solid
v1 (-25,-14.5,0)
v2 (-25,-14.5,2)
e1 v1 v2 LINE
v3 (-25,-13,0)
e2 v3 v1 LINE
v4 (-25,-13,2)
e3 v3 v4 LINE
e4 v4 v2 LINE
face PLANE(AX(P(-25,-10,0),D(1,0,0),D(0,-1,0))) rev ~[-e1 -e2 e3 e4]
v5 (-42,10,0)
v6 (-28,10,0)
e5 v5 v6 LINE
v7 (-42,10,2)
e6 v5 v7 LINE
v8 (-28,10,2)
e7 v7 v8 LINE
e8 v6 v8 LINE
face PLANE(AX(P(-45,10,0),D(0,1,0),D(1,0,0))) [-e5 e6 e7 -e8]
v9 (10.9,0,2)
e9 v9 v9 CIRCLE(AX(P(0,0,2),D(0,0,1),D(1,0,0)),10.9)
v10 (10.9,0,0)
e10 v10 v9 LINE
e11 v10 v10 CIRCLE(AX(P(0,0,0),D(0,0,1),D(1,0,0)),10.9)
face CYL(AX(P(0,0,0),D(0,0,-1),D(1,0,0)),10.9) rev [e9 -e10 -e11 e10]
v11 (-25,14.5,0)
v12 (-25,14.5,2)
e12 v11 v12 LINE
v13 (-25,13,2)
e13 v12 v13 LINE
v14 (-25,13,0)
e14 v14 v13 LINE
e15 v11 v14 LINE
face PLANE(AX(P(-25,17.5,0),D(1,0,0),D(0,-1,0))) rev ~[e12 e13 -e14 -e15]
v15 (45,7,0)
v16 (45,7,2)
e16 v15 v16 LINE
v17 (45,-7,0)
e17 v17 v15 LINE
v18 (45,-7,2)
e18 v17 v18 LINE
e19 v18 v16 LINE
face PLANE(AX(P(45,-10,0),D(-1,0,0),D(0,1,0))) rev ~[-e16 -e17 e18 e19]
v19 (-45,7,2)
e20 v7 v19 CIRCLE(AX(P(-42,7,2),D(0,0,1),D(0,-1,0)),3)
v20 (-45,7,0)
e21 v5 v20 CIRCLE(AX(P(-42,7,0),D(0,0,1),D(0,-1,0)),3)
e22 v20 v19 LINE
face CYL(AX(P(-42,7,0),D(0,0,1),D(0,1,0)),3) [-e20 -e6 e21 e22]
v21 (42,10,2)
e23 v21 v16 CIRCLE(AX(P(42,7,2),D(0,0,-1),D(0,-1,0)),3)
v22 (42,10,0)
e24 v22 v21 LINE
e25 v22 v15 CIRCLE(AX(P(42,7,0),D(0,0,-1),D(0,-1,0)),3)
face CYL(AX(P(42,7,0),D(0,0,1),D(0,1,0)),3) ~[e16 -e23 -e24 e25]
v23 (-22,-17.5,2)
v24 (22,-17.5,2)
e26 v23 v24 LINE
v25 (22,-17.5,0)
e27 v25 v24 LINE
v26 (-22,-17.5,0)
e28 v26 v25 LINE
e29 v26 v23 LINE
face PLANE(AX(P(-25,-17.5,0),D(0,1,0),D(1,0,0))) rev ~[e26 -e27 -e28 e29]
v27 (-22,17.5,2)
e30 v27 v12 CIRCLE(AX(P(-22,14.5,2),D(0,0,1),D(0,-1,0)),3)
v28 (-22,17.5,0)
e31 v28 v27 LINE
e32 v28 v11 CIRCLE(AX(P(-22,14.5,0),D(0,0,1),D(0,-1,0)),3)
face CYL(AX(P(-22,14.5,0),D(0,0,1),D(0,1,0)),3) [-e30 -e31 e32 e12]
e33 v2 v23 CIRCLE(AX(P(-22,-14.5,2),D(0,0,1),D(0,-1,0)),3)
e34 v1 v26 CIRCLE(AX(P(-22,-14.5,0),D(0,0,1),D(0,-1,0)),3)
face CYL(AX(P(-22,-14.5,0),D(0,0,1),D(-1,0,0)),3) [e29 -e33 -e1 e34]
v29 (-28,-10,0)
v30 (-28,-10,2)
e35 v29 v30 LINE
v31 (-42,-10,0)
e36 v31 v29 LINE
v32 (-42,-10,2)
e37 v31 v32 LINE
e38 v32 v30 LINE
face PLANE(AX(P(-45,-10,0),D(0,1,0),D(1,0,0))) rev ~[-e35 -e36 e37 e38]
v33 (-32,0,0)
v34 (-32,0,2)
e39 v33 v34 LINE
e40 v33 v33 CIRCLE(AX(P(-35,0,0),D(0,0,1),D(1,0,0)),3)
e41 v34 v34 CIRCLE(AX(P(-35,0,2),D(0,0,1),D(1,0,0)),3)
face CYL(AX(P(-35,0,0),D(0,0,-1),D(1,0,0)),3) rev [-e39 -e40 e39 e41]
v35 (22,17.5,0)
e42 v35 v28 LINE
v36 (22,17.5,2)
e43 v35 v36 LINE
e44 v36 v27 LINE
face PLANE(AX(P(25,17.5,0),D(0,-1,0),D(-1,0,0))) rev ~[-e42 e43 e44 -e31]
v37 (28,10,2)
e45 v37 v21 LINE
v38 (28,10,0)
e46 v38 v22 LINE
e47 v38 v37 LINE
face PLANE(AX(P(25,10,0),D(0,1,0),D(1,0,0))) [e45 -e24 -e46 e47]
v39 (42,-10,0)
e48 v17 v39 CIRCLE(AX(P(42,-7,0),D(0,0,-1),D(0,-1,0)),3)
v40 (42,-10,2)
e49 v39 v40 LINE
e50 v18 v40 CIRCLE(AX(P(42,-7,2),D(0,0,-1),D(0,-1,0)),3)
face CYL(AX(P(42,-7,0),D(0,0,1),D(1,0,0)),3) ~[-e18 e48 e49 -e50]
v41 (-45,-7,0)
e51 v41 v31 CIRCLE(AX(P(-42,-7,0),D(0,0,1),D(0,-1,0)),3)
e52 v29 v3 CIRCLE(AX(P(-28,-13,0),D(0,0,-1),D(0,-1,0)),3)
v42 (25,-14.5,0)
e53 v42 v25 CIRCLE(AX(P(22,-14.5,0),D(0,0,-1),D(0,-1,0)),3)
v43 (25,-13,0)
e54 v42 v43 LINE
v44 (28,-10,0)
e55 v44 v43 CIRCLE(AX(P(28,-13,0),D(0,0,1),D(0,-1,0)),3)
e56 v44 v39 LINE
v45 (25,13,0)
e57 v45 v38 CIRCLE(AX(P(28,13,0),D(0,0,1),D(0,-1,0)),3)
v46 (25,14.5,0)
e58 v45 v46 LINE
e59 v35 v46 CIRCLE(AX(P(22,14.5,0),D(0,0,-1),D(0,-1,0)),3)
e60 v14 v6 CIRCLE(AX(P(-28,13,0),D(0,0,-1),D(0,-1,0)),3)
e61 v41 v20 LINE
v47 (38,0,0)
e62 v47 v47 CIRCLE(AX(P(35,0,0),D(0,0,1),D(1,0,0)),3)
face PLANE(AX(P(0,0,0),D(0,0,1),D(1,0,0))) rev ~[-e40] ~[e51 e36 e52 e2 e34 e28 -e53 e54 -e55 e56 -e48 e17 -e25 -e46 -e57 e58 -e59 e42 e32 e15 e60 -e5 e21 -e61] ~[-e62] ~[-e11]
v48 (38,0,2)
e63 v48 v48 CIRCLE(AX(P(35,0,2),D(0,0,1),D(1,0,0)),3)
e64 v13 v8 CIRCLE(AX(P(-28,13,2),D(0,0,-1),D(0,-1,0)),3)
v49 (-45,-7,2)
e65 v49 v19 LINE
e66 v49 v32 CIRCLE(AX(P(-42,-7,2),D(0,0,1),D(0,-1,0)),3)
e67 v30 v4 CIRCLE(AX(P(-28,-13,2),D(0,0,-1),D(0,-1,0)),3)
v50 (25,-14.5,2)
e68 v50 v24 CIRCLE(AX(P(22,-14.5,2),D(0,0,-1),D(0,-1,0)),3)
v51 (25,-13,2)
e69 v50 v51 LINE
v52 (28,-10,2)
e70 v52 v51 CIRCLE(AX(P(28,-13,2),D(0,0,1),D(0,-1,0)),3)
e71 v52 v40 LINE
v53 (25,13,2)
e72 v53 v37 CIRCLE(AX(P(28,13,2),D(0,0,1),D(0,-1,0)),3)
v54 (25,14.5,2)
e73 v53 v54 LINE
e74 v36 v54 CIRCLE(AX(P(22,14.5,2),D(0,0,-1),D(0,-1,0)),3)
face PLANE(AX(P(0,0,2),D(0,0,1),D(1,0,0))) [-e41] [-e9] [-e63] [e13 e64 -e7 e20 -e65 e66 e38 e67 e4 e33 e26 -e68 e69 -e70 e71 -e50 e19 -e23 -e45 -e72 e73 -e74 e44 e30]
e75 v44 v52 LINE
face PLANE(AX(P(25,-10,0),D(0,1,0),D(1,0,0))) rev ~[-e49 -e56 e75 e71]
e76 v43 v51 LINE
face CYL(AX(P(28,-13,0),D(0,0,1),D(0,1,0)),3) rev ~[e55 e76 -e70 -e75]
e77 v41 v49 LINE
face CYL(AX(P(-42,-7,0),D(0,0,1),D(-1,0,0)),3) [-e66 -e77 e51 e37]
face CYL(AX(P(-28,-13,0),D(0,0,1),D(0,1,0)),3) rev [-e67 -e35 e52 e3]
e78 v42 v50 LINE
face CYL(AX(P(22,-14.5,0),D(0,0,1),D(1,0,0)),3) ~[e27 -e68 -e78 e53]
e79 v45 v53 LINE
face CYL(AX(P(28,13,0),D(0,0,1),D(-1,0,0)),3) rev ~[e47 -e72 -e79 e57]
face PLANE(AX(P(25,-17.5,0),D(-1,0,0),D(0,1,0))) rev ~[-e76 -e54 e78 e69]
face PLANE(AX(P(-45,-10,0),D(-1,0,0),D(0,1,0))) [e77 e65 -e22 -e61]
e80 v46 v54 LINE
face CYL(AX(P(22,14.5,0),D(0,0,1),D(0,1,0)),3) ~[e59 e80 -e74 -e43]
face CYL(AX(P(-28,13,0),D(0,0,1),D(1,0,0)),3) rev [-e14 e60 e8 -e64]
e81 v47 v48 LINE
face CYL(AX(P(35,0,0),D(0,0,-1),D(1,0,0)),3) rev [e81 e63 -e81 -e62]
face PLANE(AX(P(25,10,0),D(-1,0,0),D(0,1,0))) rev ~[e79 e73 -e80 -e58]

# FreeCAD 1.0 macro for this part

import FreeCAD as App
import Part
import Sketcher


def edges_at(feature, points):
    """Names of the edges that pass closest to the given points."""
    edges = feature.Shape.Edges
    near = lambda p: min(range(len(edges)), key=lambda i: edges[i].distToShape(Part.Vertex(*p))[0])
    return sorted({f"Edge{near(p) + 1}" for p in points})

doc = App.newDocument("Part")
body = doc.addObject("PartDesign::Body", "Body")

sketch1 = doc.addObject("Sketcher::SketchObject", "Sketch")
body.addObject(sketch1)
sketch1.AttachmentSupport = (doc.XY_Plane, [""])
sketch1.MapMode = "FlatFace"
sketch1.addGeometry(Part.LineSegment(App.Vector(25, 17.5, 0), App.Vector(-25, 17.5, 0)), False)
sketch1.addGeometry(Part.LineSegment(App.Vector(-25, 17.5, 0), App.Vector(-25, 10, 0)), False)
sketch1.addGeometry(Part.LineSegment(App.Vector(-25, 10, 0), App.Vector(-45, 10, 0)), False)
sketch1.addGeometry(Part.LineSegment(App.Vector(-45, 10, 0), App.Vector(-45, -10, 0)), False)
sketch1.addGeometry(Part.LineSegment(App.Vector(-45, -10, 0), App.Vector(-25, -10, 0)), False)
sketch1.addGeometry(Part.LineSegment(App.Vector(-25, -10, 0), App.Vector(-25, -17.5, 0)), False)
sketch1.addGeometry(Part.LineSegment(App.Vector(-25, -17.5, 0), App.Vector(25, -17.5, 0)), False)
sketch1.addGeometry(Part.LineSegment(App.Vector(25, -17.5, 0), App.Vector(25, -10, 0)), False)
sketch1.addGeometry(Part.LineSegment(App.Vector(25, -10, 0), App.Vector(45, -10, 0)), False)
sketch1.addGeometry(Part.LineSegment(App.Vector(45, -10, 0), App.Vector(45, 10, 0)), False)
sketch1.addGeometry(Part.LineSegment(App.Vector(45, 10, 0), App.Vector(25, 10, 0)), False)
sketch1.addGeometry(Part.LineSegment(App.Vector(25, 10, 0), App.Vector(25, 17.5, 0)), False)
sketch1.addGeometry(Part.Circle(App.Vector(-35, 0, 0), App.Vector(0, 0, 1), 3), False)
sketch1.addGeometry(Part.Circle(App.Vector(0, 0, 0), App.Vector(0, 0, 1), 10.9), False)
sketch1.addGeometry(Part.Circle(App.Vector(35, 0, 0), App.Vector(0, 0, 1), 3), False)
sketch1.addConstraint(Sketcher.Constraint("Coincident", 0, 2, 1, 1))
sketch1.addConstraint(Sketcher.Constraint("Coincident", 1, 2, 2, 1))
sketch1.addConstraint(Sketcher.Constraint("Coincident", 2, 2, 3, 1))
sketch1.addConstraint(Sketcher.Constraint("Coincident", 3, 2, 4, 1))
sketch1.addConstraint(Sketcher.Constraint("Coincident", 4, 2, 5, 1))
sketch1.addConstraint(Sketcher.Constraint("Coincident", 5, 2, 6, 1))
sketch1.addConstraint(Sketcher.Constraint("Coincident", 6, 2, 7, 1))
sketch1.addConstraint(Sketcher.Constraint("Coincident", 7, 2, 8, 1))
sketch1.addConstraint(Sketcher.Constraint("Coincident", 8, 2, 9, 1))
sketch1.addConstraint(Sketcher.Constraint("Coincident", 9, 2, 10, 1))
sketch1.addConstraint(Sketcher.Constraint("Coincident", 10, 2, 11, 1))
sketch1.addConstraint(Sketcher.Constraint("Coincident", 11, 2, 0, 1))
sketch1.addConstraint(Sketcher.Constraint("Horizontal", 0))
sketch1.addConstraint(Sketcher.Constraint("Vertical", 1))
sketch1.addConstraint(Sketcher.Constraint("Horizontal", 2))
sketch1.addConstraint(Sketcher.Constraint("Vertical", 3))
sketch1.addConstraint(Sketcher.Constraint("Horizontal", 4))
sketch1.addConstraint(Sketcher.Constraint("Vertical", 5))
sketch1.addConstraint(Sketcher.Constraint("Horizontal", 6))
sketch1.addConstraint(Sketcher.Constraint("Vertical", 7))
sketch1.addConstraint(Sketcher.Constraint("Horizontal", 8))
sketch1.addConstraint(Sketcher.Constraint("Vertical", 9))
sketch1.addConstraint(Sketcher.Constraint("Horizontal", 10))
sketch1.addConstraint(Sketcher.Constraint("Vertical", 11))
sketch1.addConstraint(Sketcher.Constraint("Coincident", 13, 3, -1, 1))
sketch1.addConstraint(Sketcher.Constraint("Equal", 12, 14))
sketch1.addConstraint(Sketcher.Constraint("Symmetric", 12, 3, 14, 3, -1, 1))
sketch1.addConstraint(Sketcher.Constraint("Symmetric", 0, 2, 6, 2, -1, 1))
sketch1.addConstraint(Sketcher.Constraint("Symmetric", 2, 2, 8, 2, -1, 1))
sketch1.addConstraint(Sketcher.Constraint("Symmetric", 4, 2, 10, 2, -1, 1))
sketch1.addConstraint(Sketcher.Constraint("Symmetric", 4, 2, 7, 2, -2))
sketch1.addConstraint(Sketcher.Constraint("PointOnObject", 12, 3, -1))
sketch1.addConstraint(Sketcher.Constraint("Equal", 10, 3))
sketch1.addConstraint(Sketcher.Constraint("Diameter", 12, 6.0))
sketch1.addConstraint(Sketcher.Constraint("Diameter", 13, 21.8))
sketch1.addConstraint(Sketcher.Constraint("DistanceX", 0, 2, 0, 1, 50.0))
sketch1.addConstraint(Sketcher.Constraint("DistanceX", 2, 2, 2, 1, 20.0))
sketch1.addConstraint(Sketcher.Constraint("DistanceY", 1, 2, 1, 1, 7.5))
sketch1.addConstraint(Sketcher.Constraint("DistanceX", 12, 3, -1, 1, 35.0))
pad1 = doc.addObject("PartDesign::Pad", "Pad")
body.addObject(pad1)
pad1.Profile = sketch1
pad1.Length = 2
doc.recompute()

fillet = doc.addObject("PartDesign::Fillet", "Fillet")
body.addObject(fillet)
fillet.Base = (pad1, edges_at(pad1, [
    (-25, -10, 1),
    (-25, 10, 1),
    (25, 10, 1),
    (25, -10, 1),
    (25, 17.5, 1),
    (25, -17.5, 1),
    (-25, -17.5, 1),
    (-25, 17.5, 1),
    (-45, 10, 1),
    (-45, -10, 1),
    (45, -10, 1),
    (45, 10, 1),
]))
fillet.Radius = 3

doc.recompute()
